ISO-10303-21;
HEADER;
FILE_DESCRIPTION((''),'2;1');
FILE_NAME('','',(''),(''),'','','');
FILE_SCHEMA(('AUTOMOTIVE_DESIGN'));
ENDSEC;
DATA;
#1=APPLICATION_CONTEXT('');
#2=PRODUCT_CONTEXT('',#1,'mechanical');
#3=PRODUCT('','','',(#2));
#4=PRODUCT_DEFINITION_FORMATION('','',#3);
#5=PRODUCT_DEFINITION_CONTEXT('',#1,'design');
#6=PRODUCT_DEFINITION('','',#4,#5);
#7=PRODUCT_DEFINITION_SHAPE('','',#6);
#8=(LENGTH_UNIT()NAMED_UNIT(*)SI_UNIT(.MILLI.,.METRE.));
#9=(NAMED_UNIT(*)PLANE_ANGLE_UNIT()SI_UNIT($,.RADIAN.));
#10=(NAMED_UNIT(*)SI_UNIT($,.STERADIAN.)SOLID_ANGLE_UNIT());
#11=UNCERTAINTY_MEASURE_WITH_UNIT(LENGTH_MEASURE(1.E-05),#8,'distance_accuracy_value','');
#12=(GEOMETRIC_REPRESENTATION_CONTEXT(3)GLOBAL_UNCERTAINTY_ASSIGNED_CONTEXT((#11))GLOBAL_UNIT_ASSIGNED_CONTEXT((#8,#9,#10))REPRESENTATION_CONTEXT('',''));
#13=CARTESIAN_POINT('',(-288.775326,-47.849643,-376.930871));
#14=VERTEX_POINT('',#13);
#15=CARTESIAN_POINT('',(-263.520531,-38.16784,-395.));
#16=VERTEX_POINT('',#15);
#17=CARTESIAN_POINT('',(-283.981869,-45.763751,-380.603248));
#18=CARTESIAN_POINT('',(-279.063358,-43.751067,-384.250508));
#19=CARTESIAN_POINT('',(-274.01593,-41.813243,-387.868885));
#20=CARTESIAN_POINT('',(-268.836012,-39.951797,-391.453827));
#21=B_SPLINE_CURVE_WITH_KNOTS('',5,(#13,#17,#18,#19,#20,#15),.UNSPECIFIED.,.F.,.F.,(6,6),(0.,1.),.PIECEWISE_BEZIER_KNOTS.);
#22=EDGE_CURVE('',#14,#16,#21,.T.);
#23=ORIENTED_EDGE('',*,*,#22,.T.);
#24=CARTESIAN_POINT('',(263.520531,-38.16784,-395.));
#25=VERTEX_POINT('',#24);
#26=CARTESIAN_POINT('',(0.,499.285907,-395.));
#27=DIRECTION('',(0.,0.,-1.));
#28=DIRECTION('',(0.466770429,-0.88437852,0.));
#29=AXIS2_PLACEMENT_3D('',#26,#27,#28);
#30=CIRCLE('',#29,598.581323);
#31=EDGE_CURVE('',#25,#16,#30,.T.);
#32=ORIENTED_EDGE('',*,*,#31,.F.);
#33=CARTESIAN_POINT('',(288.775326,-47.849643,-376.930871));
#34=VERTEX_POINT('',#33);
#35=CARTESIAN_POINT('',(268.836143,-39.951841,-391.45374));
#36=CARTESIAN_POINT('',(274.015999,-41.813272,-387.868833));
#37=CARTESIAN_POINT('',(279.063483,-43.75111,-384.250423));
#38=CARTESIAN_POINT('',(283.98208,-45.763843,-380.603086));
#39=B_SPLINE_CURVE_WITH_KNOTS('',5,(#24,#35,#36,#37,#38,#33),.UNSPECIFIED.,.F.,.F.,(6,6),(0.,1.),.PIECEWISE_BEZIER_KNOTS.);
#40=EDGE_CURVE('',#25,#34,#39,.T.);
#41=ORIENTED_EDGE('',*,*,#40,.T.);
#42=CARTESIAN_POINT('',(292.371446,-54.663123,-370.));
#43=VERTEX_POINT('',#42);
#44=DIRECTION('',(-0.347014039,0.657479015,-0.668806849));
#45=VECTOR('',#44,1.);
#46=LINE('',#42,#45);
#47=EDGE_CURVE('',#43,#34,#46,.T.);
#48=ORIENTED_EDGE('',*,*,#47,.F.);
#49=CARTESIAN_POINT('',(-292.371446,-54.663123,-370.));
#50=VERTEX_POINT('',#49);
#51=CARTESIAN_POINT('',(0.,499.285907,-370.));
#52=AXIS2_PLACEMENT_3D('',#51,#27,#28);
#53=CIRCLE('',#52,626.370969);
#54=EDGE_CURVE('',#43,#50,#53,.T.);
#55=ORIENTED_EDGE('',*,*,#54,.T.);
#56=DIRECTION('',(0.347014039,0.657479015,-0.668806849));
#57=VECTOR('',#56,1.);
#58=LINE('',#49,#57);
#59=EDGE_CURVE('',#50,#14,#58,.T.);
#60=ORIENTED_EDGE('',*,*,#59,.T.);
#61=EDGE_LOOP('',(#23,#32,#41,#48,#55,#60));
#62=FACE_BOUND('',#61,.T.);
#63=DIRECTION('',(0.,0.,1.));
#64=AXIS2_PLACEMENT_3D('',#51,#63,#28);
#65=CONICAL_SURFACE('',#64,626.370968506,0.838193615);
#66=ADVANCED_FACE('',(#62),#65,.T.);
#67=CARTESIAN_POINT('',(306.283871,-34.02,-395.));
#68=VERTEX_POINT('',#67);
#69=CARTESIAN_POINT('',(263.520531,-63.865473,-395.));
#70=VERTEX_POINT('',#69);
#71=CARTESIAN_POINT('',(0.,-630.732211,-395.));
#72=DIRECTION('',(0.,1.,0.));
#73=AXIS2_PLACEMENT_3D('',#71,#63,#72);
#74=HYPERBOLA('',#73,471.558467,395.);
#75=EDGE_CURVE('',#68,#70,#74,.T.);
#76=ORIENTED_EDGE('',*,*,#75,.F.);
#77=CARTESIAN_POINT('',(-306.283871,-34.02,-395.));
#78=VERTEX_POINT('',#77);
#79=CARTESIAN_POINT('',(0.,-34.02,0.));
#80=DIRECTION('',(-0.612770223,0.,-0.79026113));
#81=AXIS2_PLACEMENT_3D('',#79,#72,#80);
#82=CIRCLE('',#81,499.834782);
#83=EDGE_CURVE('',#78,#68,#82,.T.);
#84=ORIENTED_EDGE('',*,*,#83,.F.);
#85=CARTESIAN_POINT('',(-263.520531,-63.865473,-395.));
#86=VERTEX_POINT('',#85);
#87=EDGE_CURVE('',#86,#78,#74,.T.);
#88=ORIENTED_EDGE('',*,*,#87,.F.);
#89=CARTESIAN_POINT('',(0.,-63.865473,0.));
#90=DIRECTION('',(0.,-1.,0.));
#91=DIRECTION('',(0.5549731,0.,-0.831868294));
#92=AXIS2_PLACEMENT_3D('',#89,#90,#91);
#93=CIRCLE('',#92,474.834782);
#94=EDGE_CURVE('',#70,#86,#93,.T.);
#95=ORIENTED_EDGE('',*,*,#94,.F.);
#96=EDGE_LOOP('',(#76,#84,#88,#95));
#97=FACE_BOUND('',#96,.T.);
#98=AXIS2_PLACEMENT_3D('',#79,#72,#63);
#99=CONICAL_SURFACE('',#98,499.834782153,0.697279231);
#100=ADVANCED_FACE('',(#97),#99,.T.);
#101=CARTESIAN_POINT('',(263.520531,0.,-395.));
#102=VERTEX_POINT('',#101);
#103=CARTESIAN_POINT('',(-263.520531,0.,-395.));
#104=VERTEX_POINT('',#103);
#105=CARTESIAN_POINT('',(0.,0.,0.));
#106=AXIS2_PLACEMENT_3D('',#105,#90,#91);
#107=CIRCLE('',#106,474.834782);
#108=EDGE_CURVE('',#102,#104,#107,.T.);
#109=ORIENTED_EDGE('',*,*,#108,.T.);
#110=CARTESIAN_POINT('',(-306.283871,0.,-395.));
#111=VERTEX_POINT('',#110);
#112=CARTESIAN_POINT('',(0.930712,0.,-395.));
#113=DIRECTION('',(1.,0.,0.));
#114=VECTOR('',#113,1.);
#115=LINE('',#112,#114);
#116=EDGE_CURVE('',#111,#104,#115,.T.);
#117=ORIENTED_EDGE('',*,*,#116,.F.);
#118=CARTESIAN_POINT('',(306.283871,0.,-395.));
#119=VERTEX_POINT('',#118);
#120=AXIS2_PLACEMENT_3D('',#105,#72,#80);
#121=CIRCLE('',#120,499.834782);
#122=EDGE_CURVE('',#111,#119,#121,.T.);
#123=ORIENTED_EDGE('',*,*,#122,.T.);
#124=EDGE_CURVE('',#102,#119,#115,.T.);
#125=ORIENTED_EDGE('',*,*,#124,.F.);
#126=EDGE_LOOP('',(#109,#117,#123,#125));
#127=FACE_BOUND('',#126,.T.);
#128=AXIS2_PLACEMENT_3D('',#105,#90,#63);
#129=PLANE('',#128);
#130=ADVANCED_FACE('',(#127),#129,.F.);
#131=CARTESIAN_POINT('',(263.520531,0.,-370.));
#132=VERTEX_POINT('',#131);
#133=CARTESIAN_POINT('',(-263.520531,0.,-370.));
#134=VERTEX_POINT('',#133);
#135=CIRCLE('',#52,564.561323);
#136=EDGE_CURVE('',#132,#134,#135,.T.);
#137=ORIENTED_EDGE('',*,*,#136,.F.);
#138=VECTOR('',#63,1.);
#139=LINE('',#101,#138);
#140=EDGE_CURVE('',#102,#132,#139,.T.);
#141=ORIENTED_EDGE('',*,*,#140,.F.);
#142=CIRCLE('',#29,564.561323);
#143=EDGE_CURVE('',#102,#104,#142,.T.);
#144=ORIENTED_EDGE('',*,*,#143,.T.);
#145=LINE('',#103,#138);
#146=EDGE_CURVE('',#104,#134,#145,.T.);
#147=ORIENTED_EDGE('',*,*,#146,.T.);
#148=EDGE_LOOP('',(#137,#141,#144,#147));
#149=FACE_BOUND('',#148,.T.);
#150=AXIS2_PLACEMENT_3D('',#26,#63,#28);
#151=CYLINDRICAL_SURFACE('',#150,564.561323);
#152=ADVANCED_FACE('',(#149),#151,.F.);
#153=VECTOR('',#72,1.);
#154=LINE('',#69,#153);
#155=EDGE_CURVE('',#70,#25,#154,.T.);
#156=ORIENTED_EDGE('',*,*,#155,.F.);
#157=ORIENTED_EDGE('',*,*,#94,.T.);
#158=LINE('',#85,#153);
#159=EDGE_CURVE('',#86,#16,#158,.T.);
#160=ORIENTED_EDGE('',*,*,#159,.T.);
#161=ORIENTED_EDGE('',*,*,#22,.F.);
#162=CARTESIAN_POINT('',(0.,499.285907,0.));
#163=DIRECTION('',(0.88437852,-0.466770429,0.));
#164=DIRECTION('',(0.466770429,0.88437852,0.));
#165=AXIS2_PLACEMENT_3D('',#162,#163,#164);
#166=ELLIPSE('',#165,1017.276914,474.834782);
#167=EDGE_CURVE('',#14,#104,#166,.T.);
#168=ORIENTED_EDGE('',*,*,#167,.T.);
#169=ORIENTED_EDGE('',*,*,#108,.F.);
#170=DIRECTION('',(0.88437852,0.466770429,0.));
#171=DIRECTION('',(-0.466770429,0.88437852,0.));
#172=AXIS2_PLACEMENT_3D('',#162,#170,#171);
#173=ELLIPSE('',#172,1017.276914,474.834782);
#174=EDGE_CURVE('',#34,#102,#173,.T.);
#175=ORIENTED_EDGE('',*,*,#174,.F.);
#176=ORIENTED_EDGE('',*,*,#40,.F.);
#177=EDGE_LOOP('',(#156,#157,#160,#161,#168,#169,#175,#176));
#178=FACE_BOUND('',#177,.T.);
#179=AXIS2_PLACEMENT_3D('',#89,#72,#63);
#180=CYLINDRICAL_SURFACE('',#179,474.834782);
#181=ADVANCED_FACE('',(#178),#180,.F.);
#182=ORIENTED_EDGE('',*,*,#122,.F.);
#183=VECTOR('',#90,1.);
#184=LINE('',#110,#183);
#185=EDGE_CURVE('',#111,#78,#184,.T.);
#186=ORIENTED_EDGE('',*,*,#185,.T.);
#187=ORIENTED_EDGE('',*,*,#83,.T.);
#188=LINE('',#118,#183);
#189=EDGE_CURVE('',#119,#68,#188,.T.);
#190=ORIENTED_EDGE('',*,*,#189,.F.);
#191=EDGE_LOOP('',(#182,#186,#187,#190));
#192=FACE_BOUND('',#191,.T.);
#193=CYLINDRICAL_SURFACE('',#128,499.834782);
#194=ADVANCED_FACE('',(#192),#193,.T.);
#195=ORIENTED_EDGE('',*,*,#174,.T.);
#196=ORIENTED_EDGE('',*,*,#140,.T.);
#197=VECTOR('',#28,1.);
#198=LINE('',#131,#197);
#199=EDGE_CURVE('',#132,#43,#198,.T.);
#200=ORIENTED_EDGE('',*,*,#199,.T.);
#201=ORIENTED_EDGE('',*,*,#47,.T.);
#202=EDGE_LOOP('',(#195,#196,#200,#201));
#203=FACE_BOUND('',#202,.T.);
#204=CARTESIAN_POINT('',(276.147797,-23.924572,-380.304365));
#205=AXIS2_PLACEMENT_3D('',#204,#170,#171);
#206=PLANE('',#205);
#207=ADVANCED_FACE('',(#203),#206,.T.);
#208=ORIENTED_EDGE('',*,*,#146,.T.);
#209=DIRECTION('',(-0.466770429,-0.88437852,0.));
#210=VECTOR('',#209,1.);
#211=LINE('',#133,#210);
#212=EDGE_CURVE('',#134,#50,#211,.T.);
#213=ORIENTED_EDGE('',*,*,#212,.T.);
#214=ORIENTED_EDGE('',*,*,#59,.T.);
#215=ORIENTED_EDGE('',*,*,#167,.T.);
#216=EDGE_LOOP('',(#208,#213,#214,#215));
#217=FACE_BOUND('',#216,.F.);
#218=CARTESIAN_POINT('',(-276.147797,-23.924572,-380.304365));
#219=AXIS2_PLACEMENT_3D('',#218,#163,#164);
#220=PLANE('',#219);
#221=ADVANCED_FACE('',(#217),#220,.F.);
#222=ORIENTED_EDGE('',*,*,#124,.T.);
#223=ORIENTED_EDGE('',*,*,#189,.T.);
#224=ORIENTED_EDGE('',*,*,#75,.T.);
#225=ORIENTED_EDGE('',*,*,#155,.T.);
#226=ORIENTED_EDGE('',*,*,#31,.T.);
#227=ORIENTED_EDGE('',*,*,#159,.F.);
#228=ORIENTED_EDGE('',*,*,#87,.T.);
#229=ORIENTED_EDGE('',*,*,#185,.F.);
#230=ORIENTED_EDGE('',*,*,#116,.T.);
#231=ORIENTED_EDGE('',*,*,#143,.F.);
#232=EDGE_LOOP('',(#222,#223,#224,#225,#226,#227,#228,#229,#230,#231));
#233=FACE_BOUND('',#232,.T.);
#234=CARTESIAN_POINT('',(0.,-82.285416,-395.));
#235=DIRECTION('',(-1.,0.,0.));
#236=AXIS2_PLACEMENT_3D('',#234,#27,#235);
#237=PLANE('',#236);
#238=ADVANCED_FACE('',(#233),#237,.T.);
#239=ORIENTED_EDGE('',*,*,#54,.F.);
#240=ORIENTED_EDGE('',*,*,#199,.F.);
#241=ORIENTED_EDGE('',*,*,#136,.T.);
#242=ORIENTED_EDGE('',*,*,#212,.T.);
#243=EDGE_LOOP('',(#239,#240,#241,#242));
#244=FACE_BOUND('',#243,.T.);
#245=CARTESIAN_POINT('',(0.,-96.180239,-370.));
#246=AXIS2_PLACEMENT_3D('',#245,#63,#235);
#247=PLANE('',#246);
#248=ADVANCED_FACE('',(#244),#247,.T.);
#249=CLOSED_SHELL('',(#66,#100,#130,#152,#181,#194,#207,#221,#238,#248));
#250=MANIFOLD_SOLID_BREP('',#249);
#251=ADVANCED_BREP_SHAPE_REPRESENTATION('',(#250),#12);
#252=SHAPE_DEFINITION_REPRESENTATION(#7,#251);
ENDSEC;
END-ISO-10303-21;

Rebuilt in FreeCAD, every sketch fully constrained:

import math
import FreeCAD as App
import Part
import Sketcher
from FreeCAD import Vector
Q = App.Units.Quantity

doc = App.newDocument("Part")
body = doc.addObject("PartDesign::Body", "Body")

sketch1 = body.newObject("Sketcher::SketchObject", "Sketch")
sketch1.AttachmentSupport = (doc.getObject("YZ_Plane"), [""])
sketch1.MapMode = "FlatFace"
sketch1.addGeometry([
    Part.LineSegment(Vector(0, 475, 0), Vector(0, 500, 0)),
    Part.LineSegment(Vector(0, 500, 0), Vector(-34, 500, 0)),
    Part.LineSegment(Vector(-34, 500, 0), Vector(-64, 475, 0)),
    Part.LineSegment(Vector(-64, 475, 0), Vector(0, 475, 0)),
], False)
sketch1.addConstraint([
    Sketcher.Constraint("Coincident", 0, 2, 1, 1),
    Sketcher.Constraint("Coincident", 1, 2, 2, 1),
    Sketcher.Constraint("Coincident", 2, 2, 3, 1),
    Sketcher.Constraint("Coincident", 3, 2, 0, 1),
    Sketcher.Constraint("Vertical", 0),
    Sketcher.Constraint("Horizontal", 1),
    Sketcher.Constraint("Horizontal", 3),
    Sketcher.Constraint("PointOnObject", 0, 2, -2),
    Sketcher.Constraint("DistanceY", 0, 1, 0, 2, Q("25 mm")),
    Sketcher.Constraint("DistanceX", 1, 2, 1, 1, Q("34.02 mm")),
    Sketcher.Constraint("DistanceX", 3, 1, 3, 2, Q("63.865473 mm")),
    Sketcher.Constraint("DistanceY", -1, 1, 0, 2, Q("499.834782 mm")),
])
revolution = body.newObject("PartDesign::Revolution", "Revolution")
revolution.Profile = sketch1
revolution.ReferenceAxis = (sketch1, ["H_Axis"])
revolution.Angle = 360

sketch2 = body.newObject("Sketcher::SketchObject", "Sketch001")
sketch2.AttachmentSupport = (doc.getObject("XZ_Plane"), [""])
sketch2.MapMode = "FlatFace"
sketch2.addGeometry([
    Part.LineSegment(Vector(-336, -395, 0), Vector(-336, -509, 0)),
    Part.LineSegment(Vector(-336, -509, 0), Vector(338, -509, 0)),
    Part.LineSegment(Vector(338, -509, 0), Vector(338, -395, 0)),
    Part.LineSegment(Vector(338, -395, 0), Vector(-336, -395, 0)),
], False)
sketch2.addConstraint([
    Sketcher.Constraint("Coincident", 0, 2, 1, 1),
    Sketcher.Constraint("Coincident", 1, 2, 2, 1),
    Sketcher.Constraint("Coincident", 2, 2, 3, 1),
    Sketcher.Constraint("Coincident", 3, 2, 0, 1),
    Sketcher.Constraint("Vertical", 0),
    Sketcher.Constraint("Horizontal", 1),
    Sketcher.Constraint("Vertical", 2),
    Sketcher.Constraint("Horizontal", 3),
    Sketcher.Constraint("DistanceY", 2, 2, -1, 1, Q("395 mm")),
    Sketcher.Constraint("DistanceX", 1, 1, 1, 2, Q("673.824877 mm")),
    Sketcher.Constraint("DistanceY", 0, 2, 0, 1, Q("114.008825 mm")),
    Sketcher.Constraint("DistanceX", -1, 1, 1, 2, Q("337.84315 mm")),
])
pocket1 = body.newObject("PartDesign::Pocket", "Pocket")
pocket1.Profile = sketch2
pocket1.Length = 253
pocket1.Reversed = True

sketch3 = body.newObject("Sketcher::SketchObject", "Sketch002")
sketch3.AttachmentSupport = (doc.getObject("YZ_Plane"), [""])
sketch3.MapMode = "FlatFace"
sketch3.addGeometry([
    Part.LineSegment(Vector(-65, -395, 0), Vector(-65, -370, 0)),
    Part.LineSegment(Vector(-65, -370, 0), Vector(-127, -370, 0)),
    Part.LineSegment(Vector(-127, -370, 0), Vector(-99, -395, 0)),
    Part.LineSegment(Vector(-99, -395, 0), Vector(-65, -395, 0)),
], False)
sketch3.addConstraint([
    Sketcher.Constraint("Coincident", 0, 2, 1, 1),
    Sketcher.Constraint("Coincident", 1, 2, 2, 1),
    Sketcher.Constraint("Coincident", 2, 2, 3, 1),
    Sketcher.Constraint("Coincident", 3, 2, 0, 1),
    Sketcher.Constraint("Vertical", 0),
    Sketcher.Constraint("Horizontal", 1),
    Sketcher.Constraint("Horizontal", 3),
    Sketcher.Constraint("DistanceY", 0, 1, 0, 2, Q("25 mm")),
    Sketcher.Constraint("DistanceY", 0, 2, -1, 1, Q("370 mm")),
    Sketcher.Constraint("DistanceX", 3, 1, 3, 2, Q("34.02 mm")),
    Sketcher.Constraint("Distance", 2, Q("37.38 mm")),
    Sketcher.Constraint("DistanceX", 1, 2, -1, 1, Q("127.085061 mm")),
])

sketch4 = body.newObject("Sketcher::SketchObject", "Sketch003")
sketch4.AttachmentSupport = (doc.getObject("XY_Plane"), [""])
sketch4.MapMode = "FlatFace"
sketch4.AttachmentOffset = App.Placement(Vector(0, 0, -395), App.Rotation())
sketch4.addGeometry(Part.ArcOfCircle(Part.Circle(Vector(0, 499, 0), Vector(0, 0, 1), 565), math.radians(-118), math.radians(-62)), False)
sketch4.addConstraint([
    Sketcher.Constraint("Symmetric", 0, 1, 0, 2, -1, 1),
    Sketcher.Constraint("PointOnObject", 0, 3, -2),
    Sketcher.Constraint("Radius", 0, Q("564.561323 mm")),
    Sketcher.Constraint("DistanceX", 0, 1, -1, 1, Q("263.520531 mm")),
])
doc.recompute()

additivepipe = body.newObject("PartDesign::AdditivePipe", "AdditivePipe")
additivepipe.Profile = sketch3
additivepipe.Spine = (sketch4, ["Edge1"])

doc.recompute()
